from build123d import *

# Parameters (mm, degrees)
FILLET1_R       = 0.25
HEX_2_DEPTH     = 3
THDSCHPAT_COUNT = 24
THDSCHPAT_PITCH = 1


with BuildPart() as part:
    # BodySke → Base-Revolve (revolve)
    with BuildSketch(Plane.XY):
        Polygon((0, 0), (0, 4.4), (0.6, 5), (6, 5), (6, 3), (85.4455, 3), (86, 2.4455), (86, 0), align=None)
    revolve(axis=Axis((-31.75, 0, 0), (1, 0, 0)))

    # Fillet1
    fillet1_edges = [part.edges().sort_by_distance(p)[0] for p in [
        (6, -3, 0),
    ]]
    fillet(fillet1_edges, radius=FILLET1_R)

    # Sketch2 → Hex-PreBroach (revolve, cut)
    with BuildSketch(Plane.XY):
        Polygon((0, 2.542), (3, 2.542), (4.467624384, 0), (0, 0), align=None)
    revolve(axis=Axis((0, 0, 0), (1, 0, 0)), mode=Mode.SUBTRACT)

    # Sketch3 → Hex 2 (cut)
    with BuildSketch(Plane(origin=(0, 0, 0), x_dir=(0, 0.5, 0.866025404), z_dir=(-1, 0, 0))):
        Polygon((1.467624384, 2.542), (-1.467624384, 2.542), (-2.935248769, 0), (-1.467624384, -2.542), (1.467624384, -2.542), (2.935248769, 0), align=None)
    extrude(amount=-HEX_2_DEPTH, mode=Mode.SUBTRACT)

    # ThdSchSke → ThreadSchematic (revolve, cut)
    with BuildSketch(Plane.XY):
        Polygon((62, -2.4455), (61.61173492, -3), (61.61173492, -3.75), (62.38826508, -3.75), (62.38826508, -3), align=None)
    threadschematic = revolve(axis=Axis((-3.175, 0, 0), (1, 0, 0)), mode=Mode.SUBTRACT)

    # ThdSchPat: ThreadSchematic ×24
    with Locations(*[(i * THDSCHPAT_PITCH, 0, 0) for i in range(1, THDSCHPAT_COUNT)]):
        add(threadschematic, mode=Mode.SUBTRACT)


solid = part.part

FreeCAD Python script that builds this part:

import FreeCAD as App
import Part
import Sketcher
from FreeCAD import Vector
Q = App.Units.Quantity


def edges_at(feature, points):
    """Names of the edges that pass closest to the given points."""
    edges = feature.Shape.Edges
    near = lambda p: min(range(len(edges)), key=lambda i: edges[i].distToShape(Part.Vertex(*p))[0])
    return sorted({f"Edge{near(p) + 1}" for p in points})


def add_polygon(sketch, points):
    """Adds a closed chain of lines whose ends are joined by coincident constraints."""
    first, n = sketch.GeometryCount, len(points)
    for a, b in zip(points, points[1:] + points[:1]):
        sketch.addGeometry(Part.LineSegment(App.Vector(*a, 0), App.Vector(*b, 0)), False)
    for i in range(n):
        sketch.addConstraint(Sketcher.Constraint("Coincident", first + i, 2, first + (i + 1) % n, 1))

doc = App.newDocument("Part")
body = doc.addObject("PartDesign::Body", "Body")

# Sketch on XY plane
sketch1 = body.newObject("Sketcher::SketchObject", "Sketch")
sketch1.AttachmentSupport = (doc.getObject("XY_Plane"), [""])
sketch1.MapMode = "FlatFace"
add_polygon(sketch1, [(0, 4.4), (0, 0), (86, 0), (86, 2.4), (85.4, 3), (6, 3), (6, 5), (0.6, 5)])  # lines 0-7
sketch1.addConstraint([
    Sketcher.Constraint("Vertical", 0),
    Sketcher.Constraint("Horizontal", 1),
    Sketcher.Constraint("Vertical", 2),
    Sketcher.Constraint("Horizontal", 4),
    Sketcher.Constraint("Vertical", 5),
    Sketcher.Constraint("Horizontal", 6),
    Sketcher.Constraint("Coincident", 0, 2, -1, 1),
    Sketcher.Constraint("Perpendicular", 3, 7),
    Sketcher.Constraint("DistanceX", 1, 1, 1, 2, Q("86 mm")),
    Sketcher.Constraint("DistanceY", 5, 1, 5, 2, Q("2 mm")),
    Sketcher.Constraint("Angle", 3, Q("135 deg")),
    Sketcher.Constraint("DistanceX", 6, 2, 6, 1, Q("5.4 mm")),
    Sketcher.Constraint("DistanceY", 0, 2, 0, 1, Q("4.4 mm")),
    Sketcher.Constraint("DistanceY", -1, 1, 3, 2, Q("3 mm")),
    Sketcher.Constraint("DistanceX", 4, 2, 4, 1, Q("79.4455 mm")),
])
revolution = body.newObject("PartDesign::Revolution", "Revolution")
revolution.Profile = sketch1
revolution.ReferenceAxis = (sketch1, ["H_Axis"])
revolution.Angle = 360
doc.recompute()

fillet = body.newObject("PartDesign::Fillet", "Fillet")
fillet.Base = (revolution, edges_at(revolution, [(6, -3, 0)]))
fillet.Radius = 0.25

# Sketch on XY plane
sketch2 = body.newObject("Sketcher::SketchObject", "Sketch001")
sketch2.AttachmentSupport = (doc.getObject("XY_Plane"), [""])
sketch2.MapMode = "FlatFace"
add_polygon(sketch2, [(3, 2.5), (0, 2.5), (0, 0), (4.5, 0)])  # lines 0-3
sketch2.addConstraint([
    Sketcher.Constraint("Horizontal", 0),
    Sketcher.Constraint("Vertical", 1),
    Sketcher.Constraint("Horizontal", 2),
    Sketcher.Constraint("Coincident", 1, 2, -1, 1),
    Sketcher.Constraint("DistanceX", 0, 2, 0, 1, Q("3 mm")),
    Sketcher.Constraint("Angle", 3, Q("120 deg")),
    Sketcher.Constraint("DistanceY", 1, 2, 1, 1, Q("2.542 mm")),
])
groove = body.newObject("PartDesign::Groove", "Groove")
groove.Profile = sketch2
groove.ReferenceAxis = (sketch2, ["H_Axis"])
groove.Angle = 360

# Sketch on YZ plane
sketch3 = body.newObject("Sketcher::SketchObject", "Sketch002")
sketch3.AttachmentSupport = (doc.getObject("YZ_Plane"), [""])
sketch3.MapMode = "FlatFace"
add_polygon(sketch3, [(2.9, 0), (1.5, -2.5), (-1.5, -2.5), (-2.9, 0), (-1.5, 2.5), (1.5, 2.5)])  # lines 0-5
sketch3.addConstraint([
    Sketcher.Constraint("Horizontal", 1),
    Sketcher.Constraint("Horizontal", 4),
    Sketcher.Constraint("Symmetric", 0, 2, 3, 2, -1, 1),
    Sketcher.Constraint("Symmetric", 2, 2, 5, 2, -1, 1),
    Sketcher.Constraint("PointOnObject", 2, 2, -1),
    Sketcher.Constraint("Parallel", 2, 5),
    Sketcher.Constraint("Vertical", 1, 2, 3, 2),
    Sketcher.Constraint("Angle", 0, Q("-120 deg")),
    Sketcher.Constraint("DistanceY", 0, 2, -1, 1, Q("2.542 mm")),
    Sketcher.Constraint("DistanceX", 1, 2, 1, 1, Q("2.935249 mm")),
])
pocket1 = body.newObject("PartDesign::Pocket", "Pocket")
pocket1.Profile = sketch3
pocket1.Length = 3
pocket1.Reversed = True

# Sketch on XY plane
sketch4 = body.newObject("Sketcher::SketchObject", "Sketch003")
sketch4.AttachmentSupport = (doc.getObject("XY_Plane"), [""])
sketch4.MapMode = "FlatFace"
add_polygon(sketch4, [(62, -2.4), (61.6, -3), (61.6, -3.8), (62.4, -3.8), (62.4, -3)])  # lines 0-4
sketch4.addConstraint([
    Sketcher.Constraint("Vertical", 1),
    Sketcher.Constraint("Horizontal", 2),
    Sketcher.Constraint("Vertical", 3),
    Sketcher.Constraint("Horizontal", 0, 2, 3, 2),
    Sketcher.Constraint("Equal", 0, 4),
    Sketcher.Constraint("Angle", 0, Q("-125 deg")),
    Sketcher.Constraint("DistanceY", 0, 2, -1, 1, Q("3 mm")),
    Sketcher.Constraint("DistanceX", -1, 1, 4, 2, Q("62 mm")),
    Sketcher.Constraint("DistanceY", 1, 2, 1, 1, Q("0.75 mm")),
    Sketcher.Constraint("DistanceX", 2, 1, 2, 2, Q("0.77653 mm")),
])
groove2 = body.newObject("PartDesign::Groove", "Groove001")
groove2.Profile = sketch4
groove2.ReferenceAxis = (sketch4, ["H_Axis"])
groove2.Angle = 360
doc.recompute()

linearpattern = body.newObject("PartDesign::LinearPattern", "LinearPattern")
linearpattern.Originals = [groove2]
linearpattern.Direction = (doc.getObject("X_Axis"), [""])
linearpattern.Mode = "offset"
linearpattern.Offset = 1
linearpattern.Occurrences = 24
body.Tip = linearpattern

doc.recompute()
